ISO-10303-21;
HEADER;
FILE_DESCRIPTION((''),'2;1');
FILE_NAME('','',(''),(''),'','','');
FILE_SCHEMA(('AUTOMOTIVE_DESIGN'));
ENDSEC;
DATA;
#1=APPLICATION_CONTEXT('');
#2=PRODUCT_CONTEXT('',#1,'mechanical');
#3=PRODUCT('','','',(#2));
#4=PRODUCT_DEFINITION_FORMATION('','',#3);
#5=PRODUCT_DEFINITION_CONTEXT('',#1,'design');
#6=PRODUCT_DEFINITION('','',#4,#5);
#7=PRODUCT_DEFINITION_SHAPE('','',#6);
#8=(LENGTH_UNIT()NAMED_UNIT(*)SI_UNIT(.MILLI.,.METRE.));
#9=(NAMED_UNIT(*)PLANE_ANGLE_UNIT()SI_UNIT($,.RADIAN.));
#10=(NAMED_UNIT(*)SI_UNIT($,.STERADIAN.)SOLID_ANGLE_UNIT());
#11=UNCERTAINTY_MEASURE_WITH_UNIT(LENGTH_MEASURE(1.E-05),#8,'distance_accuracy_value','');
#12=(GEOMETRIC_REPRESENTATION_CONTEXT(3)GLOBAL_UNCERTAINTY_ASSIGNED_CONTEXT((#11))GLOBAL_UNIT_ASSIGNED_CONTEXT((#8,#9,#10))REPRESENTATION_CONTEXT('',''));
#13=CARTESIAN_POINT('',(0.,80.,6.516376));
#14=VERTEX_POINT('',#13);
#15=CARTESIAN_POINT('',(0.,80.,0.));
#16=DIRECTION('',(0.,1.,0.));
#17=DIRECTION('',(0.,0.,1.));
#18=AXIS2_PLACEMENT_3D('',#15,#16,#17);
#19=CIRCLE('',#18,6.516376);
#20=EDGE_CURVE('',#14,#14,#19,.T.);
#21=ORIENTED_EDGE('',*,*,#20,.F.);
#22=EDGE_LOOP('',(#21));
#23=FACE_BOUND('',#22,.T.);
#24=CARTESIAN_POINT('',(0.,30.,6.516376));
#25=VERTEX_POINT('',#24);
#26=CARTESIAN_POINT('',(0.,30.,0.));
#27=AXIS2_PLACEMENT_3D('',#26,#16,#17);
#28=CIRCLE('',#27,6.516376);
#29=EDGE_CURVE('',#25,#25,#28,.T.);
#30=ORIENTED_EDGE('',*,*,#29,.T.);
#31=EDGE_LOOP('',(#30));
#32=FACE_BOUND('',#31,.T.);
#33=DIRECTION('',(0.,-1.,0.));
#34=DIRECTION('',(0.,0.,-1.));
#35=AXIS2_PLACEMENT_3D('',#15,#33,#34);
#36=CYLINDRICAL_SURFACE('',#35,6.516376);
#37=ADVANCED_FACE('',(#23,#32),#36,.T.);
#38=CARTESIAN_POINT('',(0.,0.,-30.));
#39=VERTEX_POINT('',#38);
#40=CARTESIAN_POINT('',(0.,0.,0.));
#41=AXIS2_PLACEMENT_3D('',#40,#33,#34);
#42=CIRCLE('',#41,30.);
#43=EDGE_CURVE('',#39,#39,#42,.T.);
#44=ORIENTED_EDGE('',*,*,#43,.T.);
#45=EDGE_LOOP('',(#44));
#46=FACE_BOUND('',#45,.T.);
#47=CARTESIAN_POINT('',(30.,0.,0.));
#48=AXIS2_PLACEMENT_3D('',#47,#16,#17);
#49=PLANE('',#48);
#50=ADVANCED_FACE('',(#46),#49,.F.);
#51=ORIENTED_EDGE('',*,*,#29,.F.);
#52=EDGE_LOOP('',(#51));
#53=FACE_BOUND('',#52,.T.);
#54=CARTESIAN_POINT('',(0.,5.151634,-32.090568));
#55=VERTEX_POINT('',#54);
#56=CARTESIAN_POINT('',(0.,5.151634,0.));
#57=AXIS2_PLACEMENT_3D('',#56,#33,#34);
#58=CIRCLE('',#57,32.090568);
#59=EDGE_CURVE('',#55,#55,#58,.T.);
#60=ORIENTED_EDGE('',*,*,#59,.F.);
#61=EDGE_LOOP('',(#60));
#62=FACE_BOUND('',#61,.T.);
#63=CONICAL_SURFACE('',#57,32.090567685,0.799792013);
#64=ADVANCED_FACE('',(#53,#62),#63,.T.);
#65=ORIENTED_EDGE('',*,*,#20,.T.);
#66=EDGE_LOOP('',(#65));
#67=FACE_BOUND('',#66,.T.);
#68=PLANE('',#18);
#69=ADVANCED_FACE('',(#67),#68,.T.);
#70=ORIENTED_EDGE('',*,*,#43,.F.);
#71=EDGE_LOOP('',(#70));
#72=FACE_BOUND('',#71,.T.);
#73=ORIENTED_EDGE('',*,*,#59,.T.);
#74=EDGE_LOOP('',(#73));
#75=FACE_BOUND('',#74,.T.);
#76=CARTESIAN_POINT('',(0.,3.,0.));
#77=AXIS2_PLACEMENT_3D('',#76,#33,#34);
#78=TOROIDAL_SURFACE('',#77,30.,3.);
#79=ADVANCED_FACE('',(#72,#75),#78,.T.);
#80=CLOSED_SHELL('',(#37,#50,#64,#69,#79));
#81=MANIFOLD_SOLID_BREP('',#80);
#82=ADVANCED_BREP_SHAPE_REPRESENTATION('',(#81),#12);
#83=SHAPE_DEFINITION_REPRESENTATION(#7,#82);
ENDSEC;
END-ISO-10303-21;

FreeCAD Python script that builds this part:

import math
import FreeCAD as App
import Part
import Sketcher
Q = App.Units.Quantity

doc = App.newDocument("Part")
body = doc.addObject("PartDesign::Body", "Body")

sketch1 = body.newObject("Sketcher::SketchObject", "Sketch")
sketch1.AttachmentSupport = (doc.getObject("XY_Plane"), [""])
sketch1.MapMode = "FlatFace"
sketch1.addGeometry(Part.LineSegment(App.Vector(32.1, 5.2, 0), App.Vector(6.5, 30, 0)), False)
sketch1.addGeometry(Part.LineSegment(App.Vector(6.5, 30, 0), App.Vector(0, 30, 0)), False)
sketch1.addGeometry(Part.LineSegment(App.Vector(0, 30, 0), App.Vector(0, 0, 0)), False)
sketch1.addGeometry(Part.LineSegment(App.Vector(0, 0, 0), App.Vector(30, 0, 0)), False)
sketch1.addGeometry(Part.ArcOfCircle(Part.Circle(App.Vector(30, 3, 0), App.Vector(0, 0, 1), 3), math.radians(-90), math.radians(46)), False)
sketch1.addConstraint(Sketcher.Constraint("Coincident", 0, 2, 1, 1))
sketch1.addConstraint(Sketcher.Constraint("Coincident", 1, 2, 2, 1))
sketch1.addConstraint(Sketcher.Constraint("Coincident", 2, 2, 3, 1))
sketch1.addConstraint(Sketcher.Constraint("Tangent", 3, 2, 4, 1))
sketch1.addConstraint(Sketcher.Constraint("Tangent", 4, 2, 0, 1))
sketch1.addConstraint(Sketcher.Constraint("Horizontal", 1))
sketch1.addConstraint(Sketcher.Constraint("Vertical", 2))
sketch1.addConstraint(Sketcher.Constraint("Horizontal", 3))
sketch1.addConstraint(Sketcher.Constraint("Coincident", 2, 2, -1, 1))
sketch1.addConstraint(Sketcher.Constraint("Equal", 3, 2))
sketch1.addConstraint(Sketcher.Constraint("Radius", 4, Q("3 mm")))
sketch1.addConstraint(Sketcher.Constraint("DistanceX", 3, 1, 3, 2, Q("30 mm")))
sketch1.addConstraint(Sketcher.Constraint("DistanceX", 1, 2, 1, 1, Q("6.516376 mm")))
revolution = body.newObject("PartDesign::Revolution", "Revolution")
revolution.Profile = sketch1
revolution.ReferenceAxis = (sketch1, ["V_Axis"])
revolution.Angle = 360

sketch2 = body.newObject("Sketcher::SketchObject", "Sketch001")
sketch2.AttachmentSupport = (doc.getObject("XZ_Plane"), [""])
sketch2.MapMode = "FlatFace"
sketch2.AttachmentOffset = App.Placement(App.Vector(0, 0, -30), App.Rotation())
sketch2.addGeometry(Part.Circle(App.Vector(0, 0, 0), App.Vector(0, 0, 1), 7), False)
sketch2.addConstraint(Sketcher.Constraint("Coincident", 0, 3, -1, 1))
sketch2.addConstraint(Sketcher.Constraint("Diameter", 0, Q("13.032753 mm")))
pad1 = body.newObject("PartDesign::Pad", "Pad")
pad1.Profile = sketch2
pad1.Length = 50
pad1.Reversed = True

doc.recompute()
